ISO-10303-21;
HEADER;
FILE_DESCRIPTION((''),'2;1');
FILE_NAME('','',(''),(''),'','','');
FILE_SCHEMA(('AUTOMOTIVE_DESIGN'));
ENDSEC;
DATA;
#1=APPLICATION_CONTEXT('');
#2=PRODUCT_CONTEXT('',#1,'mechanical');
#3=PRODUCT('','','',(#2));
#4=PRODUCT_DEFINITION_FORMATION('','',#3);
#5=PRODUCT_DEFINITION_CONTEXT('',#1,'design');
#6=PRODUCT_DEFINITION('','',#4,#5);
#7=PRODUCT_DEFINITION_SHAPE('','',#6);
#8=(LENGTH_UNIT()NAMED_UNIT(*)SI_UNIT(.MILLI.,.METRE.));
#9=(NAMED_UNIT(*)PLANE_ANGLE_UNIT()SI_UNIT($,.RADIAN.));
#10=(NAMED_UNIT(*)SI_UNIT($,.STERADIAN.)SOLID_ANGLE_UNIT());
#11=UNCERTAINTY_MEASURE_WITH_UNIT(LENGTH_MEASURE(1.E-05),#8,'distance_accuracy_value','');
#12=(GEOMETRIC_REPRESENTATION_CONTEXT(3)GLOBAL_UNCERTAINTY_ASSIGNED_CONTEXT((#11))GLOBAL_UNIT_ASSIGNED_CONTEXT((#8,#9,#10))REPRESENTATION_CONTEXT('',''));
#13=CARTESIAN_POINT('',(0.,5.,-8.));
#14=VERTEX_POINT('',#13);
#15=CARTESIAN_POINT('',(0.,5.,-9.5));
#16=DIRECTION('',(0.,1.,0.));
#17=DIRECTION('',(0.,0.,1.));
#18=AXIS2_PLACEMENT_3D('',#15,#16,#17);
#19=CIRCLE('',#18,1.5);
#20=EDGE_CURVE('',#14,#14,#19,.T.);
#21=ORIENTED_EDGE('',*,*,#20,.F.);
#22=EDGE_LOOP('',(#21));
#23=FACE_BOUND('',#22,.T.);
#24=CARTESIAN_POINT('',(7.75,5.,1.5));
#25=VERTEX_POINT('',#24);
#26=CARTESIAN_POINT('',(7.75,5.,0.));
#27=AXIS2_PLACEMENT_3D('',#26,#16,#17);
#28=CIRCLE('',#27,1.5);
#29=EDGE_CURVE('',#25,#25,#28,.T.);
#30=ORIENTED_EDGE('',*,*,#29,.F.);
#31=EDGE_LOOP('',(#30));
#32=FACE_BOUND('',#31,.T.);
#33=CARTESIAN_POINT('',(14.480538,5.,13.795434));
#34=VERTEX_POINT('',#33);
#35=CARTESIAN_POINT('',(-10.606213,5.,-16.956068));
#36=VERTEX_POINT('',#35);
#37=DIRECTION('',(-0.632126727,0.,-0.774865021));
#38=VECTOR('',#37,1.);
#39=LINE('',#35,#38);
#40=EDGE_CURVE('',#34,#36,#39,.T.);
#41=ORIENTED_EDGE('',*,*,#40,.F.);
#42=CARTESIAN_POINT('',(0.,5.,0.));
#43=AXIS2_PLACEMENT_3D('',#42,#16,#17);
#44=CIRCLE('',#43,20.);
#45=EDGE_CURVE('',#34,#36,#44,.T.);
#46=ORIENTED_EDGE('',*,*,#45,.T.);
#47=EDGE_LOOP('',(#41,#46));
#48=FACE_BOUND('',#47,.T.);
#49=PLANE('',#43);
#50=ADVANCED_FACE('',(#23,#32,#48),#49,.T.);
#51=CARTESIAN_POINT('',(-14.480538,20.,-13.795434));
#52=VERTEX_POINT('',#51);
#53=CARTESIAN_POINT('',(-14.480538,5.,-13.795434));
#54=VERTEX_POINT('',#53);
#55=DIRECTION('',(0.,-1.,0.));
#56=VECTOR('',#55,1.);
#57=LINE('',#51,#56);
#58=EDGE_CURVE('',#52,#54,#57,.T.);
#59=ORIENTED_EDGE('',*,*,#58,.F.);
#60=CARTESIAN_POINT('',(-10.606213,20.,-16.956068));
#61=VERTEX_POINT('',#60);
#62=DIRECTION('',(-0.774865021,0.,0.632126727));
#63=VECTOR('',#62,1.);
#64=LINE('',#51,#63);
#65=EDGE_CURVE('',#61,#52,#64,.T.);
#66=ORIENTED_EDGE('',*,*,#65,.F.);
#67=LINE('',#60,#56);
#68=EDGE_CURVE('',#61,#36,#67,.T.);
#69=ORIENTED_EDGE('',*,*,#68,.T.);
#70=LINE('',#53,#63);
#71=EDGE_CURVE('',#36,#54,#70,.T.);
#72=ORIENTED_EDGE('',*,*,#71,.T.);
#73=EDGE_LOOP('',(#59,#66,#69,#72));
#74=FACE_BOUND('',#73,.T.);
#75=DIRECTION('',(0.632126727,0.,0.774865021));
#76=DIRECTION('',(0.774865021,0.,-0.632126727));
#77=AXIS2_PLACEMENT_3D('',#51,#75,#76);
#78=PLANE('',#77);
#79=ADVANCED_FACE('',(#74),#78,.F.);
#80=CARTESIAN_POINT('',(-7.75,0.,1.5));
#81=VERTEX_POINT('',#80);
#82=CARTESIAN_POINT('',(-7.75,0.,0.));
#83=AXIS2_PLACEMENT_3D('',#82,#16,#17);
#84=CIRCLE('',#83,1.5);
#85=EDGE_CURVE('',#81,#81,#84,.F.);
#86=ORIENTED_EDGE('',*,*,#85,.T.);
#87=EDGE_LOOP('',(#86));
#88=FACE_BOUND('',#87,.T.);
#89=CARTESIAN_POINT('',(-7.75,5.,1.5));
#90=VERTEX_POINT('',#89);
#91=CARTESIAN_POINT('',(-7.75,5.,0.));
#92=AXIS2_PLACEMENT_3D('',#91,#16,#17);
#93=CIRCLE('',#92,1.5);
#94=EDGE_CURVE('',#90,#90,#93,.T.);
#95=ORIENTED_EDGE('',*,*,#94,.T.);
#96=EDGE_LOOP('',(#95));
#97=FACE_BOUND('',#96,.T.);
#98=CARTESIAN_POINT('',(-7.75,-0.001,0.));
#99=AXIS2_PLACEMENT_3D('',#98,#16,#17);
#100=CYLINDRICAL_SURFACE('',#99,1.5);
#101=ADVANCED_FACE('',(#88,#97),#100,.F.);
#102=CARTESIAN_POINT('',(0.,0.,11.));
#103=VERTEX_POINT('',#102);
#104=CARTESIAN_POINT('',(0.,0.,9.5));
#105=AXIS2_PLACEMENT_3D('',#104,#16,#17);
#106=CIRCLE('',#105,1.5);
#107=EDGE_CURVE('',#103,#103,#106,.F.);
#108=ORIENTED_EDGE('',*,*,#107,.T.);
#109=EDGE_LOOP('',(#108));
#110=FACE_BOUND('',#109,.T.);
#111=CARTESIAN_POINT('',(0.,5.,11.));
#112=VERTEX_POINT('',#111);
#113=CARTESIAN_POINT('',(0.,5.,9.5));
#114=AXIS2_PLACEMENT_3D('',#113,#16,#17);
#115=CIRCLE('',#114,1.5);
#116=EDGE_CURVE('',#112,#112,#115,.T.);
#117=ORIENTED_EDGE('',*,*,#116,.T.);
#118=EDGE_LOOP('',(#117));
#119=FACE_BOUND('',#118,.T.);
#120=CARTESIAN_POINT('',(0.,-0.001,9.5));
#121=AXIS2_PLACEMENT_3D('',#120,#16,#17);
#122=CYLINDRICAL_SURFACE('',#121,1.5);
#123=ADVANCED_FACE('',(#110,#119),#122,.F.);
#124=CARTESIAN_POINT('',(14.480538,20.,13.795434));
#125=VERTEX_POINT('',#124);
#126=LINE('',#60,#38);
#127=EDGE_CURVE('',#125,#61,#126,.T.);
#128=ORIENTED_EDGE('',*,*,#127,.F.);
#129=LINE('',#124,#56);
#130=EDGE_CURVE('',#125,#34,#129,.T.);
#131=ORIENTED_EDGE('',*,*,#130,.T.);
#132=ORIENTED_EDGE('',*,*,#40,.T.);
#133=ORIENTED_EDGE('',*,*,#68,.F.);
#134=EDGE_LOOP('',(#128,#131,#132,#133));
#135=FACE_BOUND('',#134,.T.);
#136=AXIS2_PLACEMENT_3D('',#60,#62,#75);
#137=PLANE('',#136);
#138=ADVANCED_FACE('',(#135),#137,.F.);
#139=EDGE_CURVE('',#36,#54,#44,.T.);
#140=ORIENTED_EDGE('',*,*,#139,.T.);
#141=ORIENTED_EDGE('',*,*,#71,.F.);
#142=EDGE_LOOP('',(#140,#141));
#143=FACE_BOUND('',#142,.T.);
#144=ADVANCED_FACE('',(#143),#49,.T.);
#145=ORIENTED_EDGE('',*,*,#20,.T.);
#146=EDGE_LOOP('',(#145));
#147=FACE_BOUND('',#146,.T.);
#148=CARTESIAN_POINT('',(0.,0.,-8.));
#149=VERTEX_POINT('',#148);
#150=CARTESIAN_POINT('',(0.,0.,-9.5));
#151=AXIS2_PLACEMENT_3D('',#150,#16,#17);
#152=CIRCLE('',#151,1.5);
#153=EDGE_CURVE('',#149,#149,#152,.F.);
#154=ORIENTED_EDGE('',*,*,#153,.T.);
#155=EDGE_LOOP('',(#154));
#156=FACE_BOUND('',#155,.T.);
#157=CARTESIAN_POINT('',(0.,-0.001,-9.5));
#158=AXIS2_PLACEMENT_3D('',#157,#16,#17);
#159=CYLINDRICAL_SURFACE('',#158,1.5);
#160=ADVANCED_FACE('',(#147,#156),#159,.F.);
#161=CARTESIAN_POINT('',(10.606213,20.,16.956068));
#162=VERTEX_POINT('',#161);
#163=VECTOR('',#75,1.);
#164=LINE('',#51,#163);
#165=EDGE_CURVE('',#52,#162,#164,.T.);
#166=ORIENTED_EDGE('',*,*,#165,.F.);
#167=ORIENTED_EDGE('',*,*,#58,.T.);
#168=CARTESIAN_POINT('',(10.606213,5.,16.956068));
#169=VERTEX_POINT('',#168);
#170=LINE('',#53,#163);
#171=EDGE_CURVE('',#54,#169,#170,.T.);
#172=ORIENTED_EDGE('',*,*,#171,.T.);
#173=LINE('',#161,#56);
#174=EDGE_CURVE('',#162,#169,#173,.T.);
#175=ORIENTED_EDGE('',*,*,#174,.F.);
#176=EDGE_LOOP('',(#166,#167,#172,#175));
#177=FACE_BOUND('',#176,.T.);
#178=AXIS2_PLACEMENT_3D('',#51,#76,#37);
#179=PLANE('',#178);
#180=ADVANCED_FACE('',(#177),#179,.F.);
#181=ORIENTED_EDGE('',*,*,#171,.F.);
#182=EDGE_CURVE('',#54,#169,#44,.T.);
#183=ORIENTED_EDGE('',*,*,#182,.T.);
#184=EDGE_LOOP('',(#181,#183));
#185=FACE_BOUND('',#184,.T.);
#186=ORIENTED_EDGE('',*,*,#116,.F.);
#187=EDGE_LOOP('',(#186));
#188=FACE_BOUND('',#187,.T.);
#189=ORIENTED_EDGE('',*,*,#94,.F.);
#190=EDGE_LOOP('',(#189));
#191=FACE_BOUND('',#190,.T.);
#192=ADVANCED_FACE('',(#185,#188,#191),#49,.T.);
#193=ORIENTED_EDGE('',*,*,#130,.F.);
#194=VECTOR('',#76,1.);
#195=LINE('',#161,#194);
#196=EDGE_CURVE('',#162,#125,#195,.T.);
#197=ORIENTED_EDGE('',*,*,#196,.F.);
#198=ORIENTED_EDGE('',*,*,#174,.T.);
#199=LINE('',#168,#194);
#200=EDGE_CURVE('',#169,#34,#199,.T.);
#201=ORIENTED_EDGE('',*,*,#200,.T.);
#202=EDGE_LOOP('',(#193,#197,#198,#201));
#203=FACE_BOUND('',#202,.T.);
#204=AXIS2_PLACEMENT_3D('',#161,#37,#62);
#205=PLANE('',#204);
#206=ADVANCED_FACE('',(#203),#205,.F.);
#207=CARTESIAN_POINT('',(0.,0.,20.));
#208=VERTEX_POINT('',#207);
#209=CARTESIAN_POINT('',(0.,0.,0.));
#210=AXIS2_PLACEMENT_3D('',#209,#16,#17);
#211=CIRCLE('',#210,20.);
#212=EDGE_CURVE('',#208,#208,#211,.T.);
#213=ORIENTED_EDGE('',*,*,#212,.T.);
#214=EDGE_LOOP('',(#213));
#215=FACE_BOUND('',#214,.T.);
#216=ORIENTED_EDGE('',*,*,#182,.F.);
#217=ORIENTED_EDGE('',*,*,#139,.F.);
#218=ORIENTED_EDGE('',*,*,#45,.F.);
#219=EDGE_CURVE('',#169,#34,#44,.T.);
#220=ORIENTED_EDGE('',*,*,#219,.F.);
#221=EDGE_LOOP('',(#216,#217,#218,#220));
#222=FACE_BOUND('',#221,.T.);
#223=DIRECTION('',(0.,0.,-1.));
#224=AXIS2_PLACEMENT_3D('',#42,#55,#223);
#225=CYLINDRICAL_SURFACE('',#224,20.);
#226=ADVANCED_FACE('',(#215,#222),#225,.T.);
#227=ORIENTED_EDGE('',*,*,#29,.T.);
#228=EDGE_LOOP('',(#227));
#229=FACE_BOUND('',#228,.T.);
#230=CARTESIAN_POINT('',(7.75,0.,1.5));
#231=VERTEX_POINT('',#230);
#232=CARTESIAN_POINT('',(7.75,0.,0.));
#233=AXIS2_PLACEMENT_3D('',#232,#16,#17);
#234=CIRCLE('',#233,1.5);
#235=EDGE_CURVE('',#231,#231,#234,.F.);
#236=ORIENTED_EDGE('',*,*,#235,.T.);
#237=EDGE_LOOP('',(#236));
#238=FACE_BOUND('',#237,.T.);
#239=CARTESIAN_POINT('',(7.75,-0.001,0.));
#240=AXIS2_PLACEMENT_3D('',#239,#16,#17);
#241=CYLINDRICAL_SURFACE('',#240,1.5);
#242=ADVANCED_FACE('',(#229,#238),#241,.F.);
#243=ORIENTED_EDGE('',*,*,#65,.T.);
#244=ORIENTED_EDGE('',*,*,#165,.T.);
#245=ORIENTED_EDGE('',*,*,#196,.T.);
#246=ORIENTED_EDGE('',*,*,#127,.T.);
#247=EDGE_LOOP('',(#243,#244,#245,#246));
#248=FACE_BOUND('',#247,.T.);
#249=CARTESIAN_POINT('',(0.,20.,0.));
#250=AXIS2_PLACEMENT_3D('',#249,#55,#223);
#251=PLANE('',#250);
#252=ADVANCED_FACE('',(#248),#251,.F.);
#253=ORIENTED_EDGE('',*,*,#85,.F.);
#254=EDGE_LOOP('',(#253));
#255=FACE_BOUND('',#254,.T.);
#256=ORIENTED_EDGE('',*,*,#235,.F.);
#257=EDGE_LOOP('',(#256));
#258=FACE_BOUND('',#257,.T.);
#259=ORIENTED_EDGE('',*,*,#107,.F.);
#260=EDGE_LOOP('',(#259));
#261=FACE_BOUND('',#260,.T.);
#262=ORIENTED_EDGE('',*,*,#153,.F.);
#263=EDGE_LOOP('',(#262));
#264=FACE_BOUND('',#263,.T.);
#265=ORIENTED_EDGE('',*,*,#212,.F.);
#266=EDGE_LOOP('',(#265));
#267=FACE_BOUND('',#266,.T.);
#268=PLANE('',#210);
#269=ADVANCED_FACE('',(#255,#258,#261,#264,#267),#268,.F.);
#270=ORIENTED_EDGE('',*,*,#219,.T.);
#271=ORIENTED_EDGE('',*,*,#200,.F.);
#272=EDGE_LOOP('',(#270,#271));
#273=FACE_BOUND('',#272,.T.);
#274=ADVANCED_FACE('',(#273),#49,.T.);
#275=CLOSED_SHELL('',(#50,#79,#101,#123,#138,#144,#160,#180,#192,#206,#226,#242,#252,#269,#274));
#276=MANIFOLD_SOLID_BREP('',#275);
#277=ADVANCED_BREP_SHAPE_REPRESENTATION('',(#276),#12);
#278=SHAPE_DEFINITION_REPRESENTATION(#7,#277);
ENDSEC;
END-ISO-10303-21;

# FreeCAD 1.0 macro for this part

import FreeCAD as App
import Part
import Sketcher
from FreeCAD import Vector


def add_polygon(sketch, points):
    """Adds a closed chain of lines whose ends are joined by coincident constraints."""
    first, n = sketch.GeometryCount, len(points)
    for a, b in zip(points, points[1:] + points[:1]):
        sketch.addGeometry(Part.LineSegment(App.Vector(*a, 0), App.Vector(*b, 0)), False)
    for i in range(n):
        sketch.addConstraint(Sketcher.Constraint("Coincident", first + i, 2, first + (i + 1) % n, 1))

doc = App.newDocument("Part")
body = doc.addObject("PartDesign::Body", "Body")

# Sketch on XZ plane
sketch1 = doc.addObject("Sketcher::SketchObject", "Sketch")
body.addObject(sketch1)
sketch1.AttachmentSupport = (doc.XZ_Plane, [""])
sketch1.MapMode = "FlatFace"
sketch1.addGeometry(Part.Circle(Vector(0, 0, 0), Vector(0, 0, 1), 20), False)
sketch1.addConstraint([
    Sketcher.Constraint("Coincident", 0, 3, -1, 1),
    Sketcher.Constraint("Diameter", 0, 40.0),
])
pad1 = doc.addObject("PartDesign::Pad", "Pad")
body.addObject(pad1)
pad1.Profile = sketch1
pad1.Length = 5
pad1.Reversed = True

# Sketch on XZ plane
sketch2 = doc.addObject("Sketcher::SketchObject", "Sketch001")
body.addObject(sketch2)
sketch2.AttachmentSupport = (doc.XZ_Plane, [""])
sketch2.MapMode = "FlatFace"
sketch2.AttachmentOffset = App.Placement(Vector(0, 0, -5), App.Rotation())
sketch2.addGeometry(Part.Circle(Vector(0, -9.5, 0), Vector(0, 0, 1), 1.5), False)
sketch2.addConstraint([
    Sketcher.Constraint("PointOnObject", 0, 3, -2),
    Sketcher.Constraint("Diameter", 0, 3.0),
    Sketcher.Constraint("DistanceY", 0, 3, -1, 1, 9.5),
])
pocket1 = doc.addObject("PartDesign::Pocket", "Pocket")
body.addObject(pocket1)
pocket1.Profile = sketch2
pocket1.Type = "UpToFirst"
pocket1.Reversed = True

# Sketch on XZ plane
sketch3 = doc.addObject("Sketcher::SketchObject", "Sketch002")
body.addObject(sketch3)
sketch3.AttachmentSupport = (doc.XZ_Plane, [""])
sketch3.MapMode = "FlatFace"
sketch3.AttachmentOffset = App.Placement(Vector(0, 0, -5), App.Rotation())
sketch3.addGeometry(Part.Circle(Vector(0, 9.5, 0), Vector(0, 0, 1), 1.5), False)
sketch3.addConstraint([
    Sketcher.Constraint("PointOnObject", 0, 3, -2),
    Sketcher.Constraint("Diameter", 0, 3.0),
    Sketcher.Constraint("DistanceY", -1, 1, 0, 3, 9.5),
])
pocket2 = doc.addObject("PartDesign::Pocket", "Pocket001")
body.addObject(pocket2)
pocket2.Profile = sketch3
pocket2.Type = "UpToFirst"
pocket2.Reversed = True

# Sketch on XZ plane
sketch4 = doc.addObject("Sketcher::SketchObject", "Sketch003")
body.addObject(sketch4)
sketch4.AttachmentSupport = (doc.XZ_Plane, [""])
sketch4.MapMode = "FlatFace"
sketch4.AttachmentOffset = App.Placement(Vector(0, 0, -5), App.Rotation())
sketch4.addGeometry(Part.Circle(Vector(-7.8, 0, 0), Vector(0, 0, 1), 1.5), False)
sketch4.addConstraint([
    Sketcher.Constraint("PointOnObject", 0, 3, -1),
    Sketcher.Constraint("Diameter", 0, 3.0),
    Sketcher.Constraint("DistanceX", 0, 3, -1, 1, 7.75),
])
pocket3 = doc.addObject("PartDesign::Pocket", "Pocket002")
body.addObject(pocket3)
pocket3.Profile = sketch4
pocket3.Type = "UpToFirst"
pocket3.Reversed = True

# Sketch on XZ plane
sketch5 = doc.addObject("Sketcher::SketchObject", "Sketch004")
body.addObject(sketch5)
sketch5.AttachmentSupport = (doc.XZ_Plane, [""])
sketch5.MapMode = "FlatFace"
sketch5.AttachmentOffset = App.Placement(Vector(0, 0, -5), App.Rotation())
sketch5.addGeometry(Part.Circle(Vector(7.8, 0, 0), Vector(0, 0, 1), 1.5), False)
sketch5.addConstraint([
    Sketcher.Constraint("PointOnObject", 0, 3, -1),
    Sketcher.Constraint("Diameter", 0, 3.0),
    Sketcher.Constraint("DistanceX", -1, 1, 0, 3, 7.75),
])
pocket4 = doc.addObject("PartDesign::Pocket", "Pocket003")
body.addObject(pocket4)
pocket4.Profile = sketch5
pocket4.Type = "UpToFirst"
pocket4.Reversed = True

# Sketch on XZ plane
sketch6 = doc.addObject("Sketcher::SketchObject", "Sketch005")
body.addObject(sketch6)
sketch6.AttachmentSupport = (doc.XZ_Plane, [""])
sketch6.MapMode = "FlatFace"
sketch6.AttachmentOffset = App.Placement(Vector(0, 0, -5), App.Rotation())
add_polygon(sketch6, [(-14.5, -13.8), (10.6, 17), (14.5, 13.8), (-10.6, -17)])  # lines 0-3
sketch6.addConstraint([
    Sketcher.Constraint("Symmetric", 0, 2, 2, 2, -1, 1),
    Sketcher.Constraint("Symmetric", 1, 2, 3, 2, -1, 1),
    Sketcher.Constraint("Perpendicular", 0, 1),
    Sketcher.Constraint("Distance", 1, 5.0),
    Sketcher.Constraint("Distance", 0, 39.68627),
    Sketcher.Constraint("DistanceX", -1, 1, 1, 2, 14.480538),
])
pad2 = doc.addObject("PartDesign::Pad", "Pad001")
body.addObject(pad2)
pad2.Profile = sketch6
pad2.Length = 15
pad2.Reversed = True

doc.recompute()
